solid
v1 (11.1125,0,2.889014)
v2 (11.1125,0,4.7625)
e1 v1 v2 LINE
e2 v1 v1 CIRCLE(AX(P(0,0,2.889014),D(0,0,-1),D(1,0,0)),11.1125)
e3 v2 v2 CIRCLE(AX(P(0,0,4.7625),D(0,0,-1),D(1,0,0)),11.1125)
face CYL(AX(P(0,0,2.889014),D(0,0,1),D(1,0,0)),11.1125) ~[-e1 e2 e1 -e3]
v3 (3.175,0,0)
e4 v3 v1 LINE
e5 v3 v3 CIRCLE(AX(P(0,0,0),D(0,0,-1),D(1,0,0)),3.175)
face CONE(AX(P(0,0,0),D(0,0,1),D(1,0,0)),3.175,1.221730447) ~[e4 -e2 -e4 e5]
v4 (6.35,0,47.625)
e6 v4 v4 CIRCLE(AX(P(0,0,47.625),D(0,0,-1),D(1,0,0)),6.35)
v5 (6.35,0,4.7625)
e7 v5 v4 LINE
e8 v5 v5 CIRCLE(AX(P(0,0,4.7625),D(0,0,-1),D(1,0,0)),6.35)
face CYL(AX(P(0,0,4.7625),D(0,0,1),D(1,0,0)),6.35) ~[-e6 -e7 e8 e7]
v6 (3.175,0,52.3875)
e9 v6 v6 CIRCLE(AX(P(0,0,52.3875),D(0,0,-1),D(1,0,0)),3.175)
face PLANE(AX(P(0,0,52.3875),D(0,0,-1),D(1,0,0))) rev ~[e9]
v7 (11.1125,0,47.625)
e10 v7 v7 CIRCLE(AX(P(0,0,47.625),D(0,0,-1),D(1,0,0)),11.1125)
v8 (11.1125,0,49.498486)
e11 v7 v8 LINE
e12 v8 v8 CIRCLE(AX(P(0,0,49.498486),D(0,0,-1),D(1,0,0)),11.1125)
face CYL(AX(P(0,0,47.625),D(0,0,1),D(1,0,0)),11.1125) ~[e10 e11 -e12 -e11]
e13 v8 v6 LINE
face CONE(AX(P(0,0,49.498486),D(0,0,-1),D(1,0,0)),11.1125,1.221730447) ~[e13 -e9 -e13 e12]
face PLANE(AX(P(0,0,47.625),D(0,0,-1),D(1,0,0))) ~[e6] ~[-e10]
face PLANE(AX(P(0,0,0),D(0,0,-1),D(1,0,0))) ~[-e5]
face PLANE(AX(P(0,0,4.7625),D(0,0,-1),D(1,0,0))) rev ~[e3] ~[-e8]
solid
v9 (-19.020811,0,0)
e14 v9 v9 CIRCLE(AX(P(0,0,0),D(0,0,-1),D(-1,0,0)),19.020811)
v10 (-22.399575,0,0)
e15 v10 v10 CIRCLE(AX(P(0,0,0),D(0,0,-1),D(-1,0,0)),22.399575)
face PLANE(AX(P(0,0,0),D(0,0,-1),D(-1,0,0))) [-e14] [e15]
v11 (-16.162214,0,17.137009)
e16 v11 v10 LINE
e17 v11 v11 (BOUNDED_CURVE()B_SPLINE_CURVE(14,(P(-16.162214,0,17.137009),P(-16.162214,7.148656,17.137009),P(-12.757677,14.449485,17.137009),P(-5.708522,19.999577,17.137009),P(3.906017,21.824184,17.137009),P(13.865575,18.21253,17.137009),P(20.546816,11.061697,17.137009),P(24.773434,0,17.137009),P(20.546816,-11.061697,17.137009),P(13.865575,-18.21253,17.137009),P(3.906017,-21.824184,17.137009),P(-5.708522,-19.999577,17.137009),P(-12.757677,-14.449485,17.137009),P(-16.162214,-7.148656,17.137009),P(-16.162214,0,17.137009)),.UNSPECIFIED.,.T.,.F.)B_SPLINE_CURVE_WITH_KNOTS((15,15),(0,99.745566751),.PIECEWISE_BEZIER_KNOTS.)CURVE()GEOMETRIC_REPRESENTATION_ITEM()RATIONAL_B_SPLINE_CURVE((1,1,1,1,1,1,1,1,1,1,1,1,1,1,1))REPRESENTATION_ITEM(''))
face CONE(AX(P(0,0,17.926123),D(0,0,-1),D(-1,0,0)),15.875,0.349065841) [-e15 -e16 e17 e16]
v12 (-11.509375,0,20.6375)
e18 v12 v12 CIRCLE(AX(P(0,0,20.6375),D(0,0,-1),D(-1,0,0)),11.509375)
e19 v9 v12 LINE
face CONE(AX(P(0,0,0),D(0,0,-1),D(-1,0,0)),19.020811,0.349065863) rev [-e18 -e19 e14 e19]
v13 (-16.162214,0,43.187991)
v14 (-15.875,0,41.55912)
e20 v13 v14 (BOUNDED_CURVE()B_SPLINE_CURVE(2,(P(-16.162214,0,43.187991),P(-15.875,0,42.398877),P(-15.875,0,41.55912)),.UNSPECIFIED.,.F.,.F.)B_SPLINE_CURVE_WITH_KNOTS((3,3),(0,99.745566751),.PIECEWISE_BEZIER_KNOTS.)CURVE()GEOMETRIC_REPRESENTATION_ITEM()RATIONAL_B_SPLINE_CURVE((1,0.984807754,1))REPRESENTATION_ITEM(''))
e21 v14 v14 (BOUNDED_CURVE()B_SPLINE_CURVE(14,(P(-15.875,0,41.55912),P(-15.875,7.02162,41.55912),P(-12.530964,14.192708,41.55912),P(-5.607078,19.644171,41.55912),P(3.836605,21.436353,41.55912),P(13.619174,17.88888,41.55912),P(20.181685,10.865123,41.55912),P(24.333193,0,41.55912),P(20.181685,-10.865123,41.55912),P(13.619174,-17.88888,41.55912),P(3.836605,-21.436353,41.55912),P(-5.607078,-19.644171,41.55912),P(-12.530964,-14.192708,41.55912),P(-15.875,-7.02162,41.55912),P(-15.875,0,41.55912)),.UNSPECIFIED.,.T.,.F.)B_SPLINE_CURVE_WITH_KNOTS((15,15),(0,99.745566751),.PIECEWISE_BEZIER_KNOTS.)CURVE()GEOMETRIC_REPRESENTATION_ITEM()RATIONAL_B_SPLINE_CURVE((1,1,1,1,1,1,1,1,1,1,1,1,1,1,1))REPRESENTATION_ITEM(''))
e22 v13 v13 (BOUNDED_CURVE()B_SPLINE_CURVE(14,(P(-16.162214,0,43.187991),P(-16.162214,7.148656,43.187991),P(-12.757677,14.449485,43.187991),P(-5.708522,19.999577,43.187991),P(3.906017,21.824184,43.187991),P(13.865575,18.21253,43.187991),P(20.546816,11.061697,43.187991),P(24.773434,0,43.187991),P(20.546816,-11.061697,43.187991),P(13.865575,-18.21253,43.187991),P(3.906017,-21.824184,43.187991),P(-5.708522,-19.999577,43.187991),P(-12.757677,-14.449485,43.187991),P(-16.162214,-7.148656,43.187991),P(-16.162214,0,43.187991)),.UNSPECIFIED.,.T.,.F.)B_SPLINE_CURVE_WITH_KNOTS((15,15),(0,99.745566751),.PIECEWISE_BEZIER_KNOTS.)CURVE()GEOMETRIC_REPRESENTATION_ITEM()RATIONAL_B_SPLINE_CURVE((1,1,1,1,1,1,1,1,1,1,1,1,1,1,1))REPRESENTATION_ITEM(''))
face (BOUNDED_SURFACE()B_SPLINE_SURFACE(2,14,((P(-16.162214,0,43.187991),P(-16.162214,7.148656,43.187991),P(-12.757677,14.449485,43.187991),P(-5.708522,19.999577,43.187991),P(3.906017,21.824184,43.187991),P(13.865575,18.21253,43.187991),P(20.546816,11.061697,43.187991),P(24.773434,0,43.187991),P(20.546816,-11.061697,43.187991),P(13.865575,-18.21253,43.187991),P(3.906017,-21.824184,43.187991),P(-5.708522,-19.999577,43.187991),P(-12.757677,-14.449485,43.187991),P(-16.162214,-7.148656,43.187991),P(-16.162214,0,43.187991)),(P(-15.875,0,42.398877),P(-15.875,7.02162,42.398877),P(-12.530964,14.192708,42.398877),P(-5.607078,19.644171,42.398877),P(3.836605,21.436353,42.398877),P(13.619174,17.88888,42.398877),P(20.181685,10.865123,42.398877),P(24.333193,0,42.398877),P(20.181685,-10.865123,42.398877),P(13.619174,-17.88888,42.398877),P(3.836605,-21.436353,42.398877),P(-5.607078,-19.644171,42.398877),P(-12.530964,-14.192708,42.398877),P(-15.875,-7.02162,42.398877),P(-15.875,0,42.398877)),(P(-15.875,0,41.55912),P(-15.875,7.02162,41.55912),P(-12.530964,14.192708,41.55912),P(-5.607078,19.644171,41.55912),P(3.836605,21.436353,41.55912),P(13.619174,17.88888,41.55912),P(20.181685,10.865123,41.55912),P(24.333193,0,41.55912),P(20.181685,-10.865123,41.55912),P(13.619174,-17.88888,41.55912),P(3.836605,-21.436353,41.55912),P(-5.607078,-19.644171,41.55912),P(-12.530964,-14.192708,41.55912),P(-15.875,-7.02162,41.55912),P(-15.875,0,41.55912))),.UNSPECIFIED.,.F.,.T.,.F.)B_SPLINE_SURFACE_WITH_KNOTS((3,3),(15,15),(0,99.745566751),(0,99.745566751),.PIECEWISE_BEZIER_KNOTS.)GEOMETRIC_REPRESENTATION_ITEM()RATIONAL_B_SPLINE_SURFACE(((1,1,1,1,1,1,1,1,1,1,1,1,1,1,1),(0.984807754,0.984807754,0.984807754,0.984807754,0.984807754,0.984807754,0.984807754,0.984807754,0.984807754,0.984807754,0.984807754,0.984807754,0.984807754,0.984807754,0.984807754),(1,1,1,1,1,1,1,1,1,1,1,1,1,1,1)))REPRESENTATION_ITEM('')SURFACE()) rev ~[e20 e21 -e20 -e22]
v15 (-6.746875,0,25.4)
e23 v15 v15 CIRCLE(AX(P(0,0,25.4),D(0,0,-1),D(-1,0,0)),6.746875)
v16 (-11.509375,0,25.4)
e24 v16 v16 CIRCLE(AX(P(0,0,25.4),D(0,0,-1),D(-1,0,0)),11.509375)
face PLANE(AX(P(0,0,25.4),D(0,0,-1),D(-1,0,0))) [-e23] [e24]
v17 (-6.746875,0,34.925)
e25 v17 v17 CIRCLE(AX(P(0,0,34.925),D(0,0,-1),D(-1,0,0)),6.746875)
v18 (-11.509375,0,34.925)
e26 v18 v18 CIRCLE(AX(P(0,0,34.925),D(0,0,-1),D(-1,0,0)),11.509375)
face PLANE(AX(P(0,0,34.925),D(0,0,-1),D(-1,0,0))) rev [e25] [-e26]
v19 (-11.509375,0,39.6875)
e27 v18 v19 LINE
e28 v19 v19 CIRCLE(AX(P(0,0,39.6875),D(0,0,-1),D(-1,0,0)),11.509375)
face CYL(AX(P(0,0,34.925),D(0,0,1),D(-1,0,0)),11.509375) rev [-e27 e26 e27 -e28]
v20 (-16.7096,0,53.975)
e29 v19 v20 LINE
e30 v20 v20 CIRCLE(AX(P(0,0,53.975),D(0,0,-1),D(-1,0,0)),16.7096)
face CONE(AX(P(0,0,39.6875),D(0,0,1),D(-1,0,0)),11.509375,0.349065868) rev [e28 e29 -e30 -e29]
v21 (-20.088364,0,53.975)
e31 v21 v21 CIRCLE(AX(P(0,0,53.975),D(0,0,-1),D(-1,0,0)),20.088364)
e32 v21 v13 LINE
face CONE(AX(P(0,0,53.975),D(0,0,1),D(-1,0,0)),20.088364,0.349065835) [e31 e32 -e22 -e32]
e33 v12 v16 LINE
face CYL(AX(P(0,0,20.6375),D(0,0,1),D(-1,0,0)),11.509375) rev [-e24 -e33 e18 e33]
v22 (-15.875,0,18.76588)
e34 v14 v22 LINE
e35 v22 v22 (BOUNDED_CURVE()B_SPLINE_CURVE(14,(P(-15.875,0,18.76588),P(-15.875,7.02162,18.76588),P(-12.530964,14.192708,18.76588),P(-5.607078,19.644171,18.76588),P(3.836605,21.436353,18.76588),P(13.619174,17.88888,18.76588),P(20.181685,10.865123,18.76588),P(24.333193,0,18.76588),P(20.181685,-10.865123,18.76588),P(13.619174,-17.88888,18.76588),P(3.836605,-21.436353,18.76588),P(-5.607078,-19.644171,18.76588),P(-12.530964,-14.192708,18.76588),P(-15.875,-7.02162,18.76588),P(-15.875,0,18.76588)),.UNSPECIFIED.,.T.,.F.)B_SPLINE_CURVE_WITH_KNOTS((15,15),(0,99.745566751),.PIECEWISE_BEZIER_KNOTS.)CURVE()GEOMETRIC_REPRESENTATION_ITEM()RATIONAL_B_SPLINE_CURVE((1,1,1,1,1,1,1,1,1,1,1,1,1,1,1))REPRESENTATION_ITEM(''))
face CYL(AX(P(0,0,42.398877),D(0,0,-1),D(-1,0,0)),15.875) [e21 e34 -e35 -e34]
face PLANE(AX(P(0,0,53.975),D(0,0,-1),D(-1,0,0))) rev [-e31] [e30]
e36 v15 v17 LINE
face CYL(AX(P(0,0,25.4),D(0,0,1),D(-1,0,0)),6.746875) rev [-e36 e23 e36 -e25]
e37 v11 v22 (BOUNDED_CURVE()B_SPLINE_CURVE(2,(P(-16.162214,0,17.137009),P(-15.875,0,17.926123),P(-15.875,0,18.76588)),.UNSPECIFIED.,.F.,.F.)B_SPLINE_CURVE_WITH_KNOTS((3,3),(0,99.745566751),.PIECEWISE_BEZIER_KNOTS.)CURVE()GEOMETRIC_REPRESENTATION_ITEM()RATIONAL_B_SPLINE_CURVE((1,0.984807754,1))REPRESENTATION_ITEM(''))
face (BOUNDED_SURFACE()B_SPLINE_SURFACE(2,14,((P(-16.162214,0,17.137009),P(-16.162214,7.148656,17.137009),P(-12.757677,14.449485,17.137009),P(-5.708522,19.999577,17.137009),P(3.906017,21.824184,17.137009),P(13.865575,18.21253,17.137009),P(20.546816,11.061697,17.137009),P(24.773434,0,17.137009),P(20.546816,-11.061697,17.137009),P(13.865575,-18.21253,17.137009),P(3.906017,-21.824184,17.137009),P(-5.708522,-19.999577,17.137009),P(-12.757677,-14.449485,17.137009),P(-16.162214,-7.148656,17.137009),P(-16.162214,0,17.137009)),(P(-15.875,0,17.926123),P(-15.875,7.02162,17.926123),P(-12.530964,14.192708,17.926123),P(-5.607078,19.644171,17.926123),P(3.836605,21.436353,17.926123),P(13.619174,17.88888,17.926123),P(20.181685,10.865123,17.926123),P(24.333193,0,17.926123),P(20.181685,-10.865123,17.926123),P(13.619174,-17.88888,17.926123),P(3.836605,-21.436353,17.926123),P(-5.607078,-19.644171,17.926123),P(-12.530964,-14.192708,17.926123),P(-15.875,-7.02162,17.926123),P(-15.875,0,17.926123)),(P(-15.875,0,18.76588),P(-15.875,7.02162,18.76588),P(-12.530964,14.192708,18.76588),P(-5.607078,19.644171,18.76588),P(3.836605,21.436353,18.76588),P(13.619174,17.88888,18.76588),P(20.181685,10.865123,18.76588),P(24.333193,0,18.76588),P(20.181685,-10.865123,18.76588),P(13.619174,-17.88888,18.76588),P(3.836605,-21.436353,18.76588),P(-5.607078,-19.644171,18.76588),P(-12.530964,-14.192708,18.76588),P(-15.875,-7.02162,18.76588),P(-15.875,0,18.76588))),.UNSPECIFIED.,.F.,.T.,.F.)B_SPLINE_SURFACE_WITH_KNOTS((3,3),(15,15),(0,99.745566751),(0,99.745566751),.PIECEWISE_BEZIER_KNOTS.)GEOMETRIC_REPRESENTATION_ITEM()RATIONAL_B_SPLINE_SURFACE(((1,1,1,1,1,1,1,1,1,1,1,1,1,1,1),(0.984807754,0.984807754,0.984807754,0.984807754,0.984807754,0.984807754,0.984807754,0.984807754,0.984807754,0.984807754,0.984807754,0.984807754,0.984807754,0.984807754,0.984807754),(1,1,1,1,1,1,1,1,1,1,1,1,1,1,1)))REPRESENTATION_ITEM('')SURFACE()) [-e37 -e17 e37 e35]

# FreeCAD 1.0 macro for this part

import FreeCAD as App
import Part
import Sketcher
Q = App.Units.Quantity


def edges_at(feature, points):
    """Names of the edges that pass closest to the given points."""
    edges = feature.Shape.Edges
    near = lambda p: min(range(len(edges)), key=lambda i: edges[i].distToShape(Part.Vertex(*p))[0])
    return sorted({f"Edge{near(p) + 1}" for p in points})


def add_polygon(sketch, points):
    """Adds a closed chain of lines whose ends are joined by coincident constraints."""
    first, n = sketch.GeometryCount, len(points)
    for a, b in zip(points, points[1:] + points[:1]):
        sketch.addGeometry(Part.LineSegment(App.Vector(*a, 0), App.Vector(*b, 0)), False)
    for i in range(n):
        sketch.addConstraint(Sketcher.Constraint("Coincident", first + i, 2, first + (i + 1) % n, 1))

doc = App.newDocument("Part")
body = doc.addObject("PartDesign::Body", "Body")
body.AllowCompound = True

# Sketch on XZ plane
sketch1 = doc.addObject("Sketcher::SketchObject", "Sketch")
body.addObject(sketch1)
sketch1.AttachmentSupport = (doc.XZ_Plane, [""])
sketch1.MapMode = "FlatFace"
add_polygon(sketch1, [(0, 52.3875), (0, 0), (3.175, 0), (11.1125, 2.889014), (11.1125, 4.7625), (6.35, 4.7625), (6.35, 47.625), (11.1125, 47.625), (11.1125, 49.498486), (3.175, 52.3875)])  # lines 0-9
add_polygon(sketch1, [(-15.875, 17.926123), (-22.399575, 0), (-19.020811, 0), (-11.509375, 20.6375), (-11.509375, 25.4), (-6.746875, 25.4), (-6.746875, 34.925), (-11.509375, 34.925), (-11.509375, 39.6875), (-16.7096, 53.975), (-20.088364, 53.975), (-15.875, 42.398877)])  # lines 10-21
sketch1.addConstraint([
    Sketcher.Constraint("Vertical", 0),
    Sketcher.Constraint("Horizontal", 1),
    Sketcher.Constraint("Vertical", 3),
    Sketcher.Constraint("Horizontal", 4),
    Sketcher.Constraint("Vertical", 5),
    Sketcher.Constraint("Horizontal", 6),
    Sketcher.Constraint("Vertical", 7),
    Sketcher.Constraint("Horizontal", 9),
    Sketcher.Constraint("Horizontal", 11),
    Sketcher.Constraint("Vertical", 13),
    Sketcher.Constraint("Horizontal", 14),
    Sketcher.Constraint("Vertical", 15),
    Sketcher.Constraint("Horizontal", 16),
    Sketcher.Constraint("Vertical", 17),
    Sketcher.Constraint("Horizontal", 19),
    Sketcher.Constraint("Vertical", 21),
    Sketcher.Constraint("Coincident", 0, 2, -1, 1),
    Sketcher.Constraint("PointOnObject", 10, 2, -1),
    Sketcher.Constraint("Perpendicular", 8, 10),
    Sketcher.Constraint("Parallel", 10, 12),
    Sketcher.Constraint("Perpendicular", 2, 18),
    Sketcher.Constraint("Parallel", 18, 20),
    Sketcher.Constraint("Vertical", 3, 2, 6, 2),
    Sketcher.Constraint("Vertical", 1, 2, 8, 2),
    Sketcher.Constraint("Vertical", 13, 2, 16, 2),
    Sketcher.Constraint("Equal", 6, 14),
    Sketcher.Constraint("Equal", 11, 19),
    Sketcher.Constraint("Equal", 3, 7),
    Sketcher.Constraint("Equal", 16, 13),
    Sketcher.Constraint("Equal", 13, 17),
    Sketcher.Constraint("Equal", 2, 8),
    Sketcher.Constraint("DistanceY", -1, 1, 13, 2, Q("1 in")),
    Sketcher.Constraint("Angle", 2, Q("20.000002 deg")),
    Sketcher.Constraint("DistanceY", 15, 2, 5, 2, Q("0.5 in")),
    Sketcher.Constraint("DistanceY", 17, 2, 9, 2, Q("0.5 in")),
    Sketcher.Constraint("DistanceX", 1, 1, 1, 2, Q("0.125 in")),
    Sketcher.Constraint("DistanceX", 4, 2, 4, 1, Q("0.1875 in")),
    Sketcher.Constraint("DistanceY", 0, 2, 0, 1, Q("2.0625 in")),
    Sketcher.Constraint("DistanceX", -1, 1, 4, 2, Q("0.25 in")),
    Sketcher.Constraint("DistanceY", 16, 2, 18, 2, Q("0.75 in")),
    Sketcher.Constraint("DistanceX", 12, 2, -1, 1, Q("0.453125 in")),
    Sketcher.Constraint("DistanceX", 20, 2, -1, 1, Q("0.625 in")),
    Sketcher.Constraint("DistanceX", 10, 2, 12, 2, Q("10.8902 mm")),
])
revolution = doc.addObject("PartDesign::Revolution", "Revolution")
body.addObject(revolution)
revolution.Profile = sketch1
revolution.ReferenceAxis = (sketch1, ["V_Axis"])
revolution.Angle = 360
doc.recompute()

fillet = doc.addObject("PartDesign::Fillet", "Fillet")
body.addObject(fillet)
fillet.Base = (revolution, edges_at(revolution, [(15.875, 0, 42.399), (15.875, 0, 17.926)]))
fillet.Radius = Q("0.1875 in")

doc.recompute()
